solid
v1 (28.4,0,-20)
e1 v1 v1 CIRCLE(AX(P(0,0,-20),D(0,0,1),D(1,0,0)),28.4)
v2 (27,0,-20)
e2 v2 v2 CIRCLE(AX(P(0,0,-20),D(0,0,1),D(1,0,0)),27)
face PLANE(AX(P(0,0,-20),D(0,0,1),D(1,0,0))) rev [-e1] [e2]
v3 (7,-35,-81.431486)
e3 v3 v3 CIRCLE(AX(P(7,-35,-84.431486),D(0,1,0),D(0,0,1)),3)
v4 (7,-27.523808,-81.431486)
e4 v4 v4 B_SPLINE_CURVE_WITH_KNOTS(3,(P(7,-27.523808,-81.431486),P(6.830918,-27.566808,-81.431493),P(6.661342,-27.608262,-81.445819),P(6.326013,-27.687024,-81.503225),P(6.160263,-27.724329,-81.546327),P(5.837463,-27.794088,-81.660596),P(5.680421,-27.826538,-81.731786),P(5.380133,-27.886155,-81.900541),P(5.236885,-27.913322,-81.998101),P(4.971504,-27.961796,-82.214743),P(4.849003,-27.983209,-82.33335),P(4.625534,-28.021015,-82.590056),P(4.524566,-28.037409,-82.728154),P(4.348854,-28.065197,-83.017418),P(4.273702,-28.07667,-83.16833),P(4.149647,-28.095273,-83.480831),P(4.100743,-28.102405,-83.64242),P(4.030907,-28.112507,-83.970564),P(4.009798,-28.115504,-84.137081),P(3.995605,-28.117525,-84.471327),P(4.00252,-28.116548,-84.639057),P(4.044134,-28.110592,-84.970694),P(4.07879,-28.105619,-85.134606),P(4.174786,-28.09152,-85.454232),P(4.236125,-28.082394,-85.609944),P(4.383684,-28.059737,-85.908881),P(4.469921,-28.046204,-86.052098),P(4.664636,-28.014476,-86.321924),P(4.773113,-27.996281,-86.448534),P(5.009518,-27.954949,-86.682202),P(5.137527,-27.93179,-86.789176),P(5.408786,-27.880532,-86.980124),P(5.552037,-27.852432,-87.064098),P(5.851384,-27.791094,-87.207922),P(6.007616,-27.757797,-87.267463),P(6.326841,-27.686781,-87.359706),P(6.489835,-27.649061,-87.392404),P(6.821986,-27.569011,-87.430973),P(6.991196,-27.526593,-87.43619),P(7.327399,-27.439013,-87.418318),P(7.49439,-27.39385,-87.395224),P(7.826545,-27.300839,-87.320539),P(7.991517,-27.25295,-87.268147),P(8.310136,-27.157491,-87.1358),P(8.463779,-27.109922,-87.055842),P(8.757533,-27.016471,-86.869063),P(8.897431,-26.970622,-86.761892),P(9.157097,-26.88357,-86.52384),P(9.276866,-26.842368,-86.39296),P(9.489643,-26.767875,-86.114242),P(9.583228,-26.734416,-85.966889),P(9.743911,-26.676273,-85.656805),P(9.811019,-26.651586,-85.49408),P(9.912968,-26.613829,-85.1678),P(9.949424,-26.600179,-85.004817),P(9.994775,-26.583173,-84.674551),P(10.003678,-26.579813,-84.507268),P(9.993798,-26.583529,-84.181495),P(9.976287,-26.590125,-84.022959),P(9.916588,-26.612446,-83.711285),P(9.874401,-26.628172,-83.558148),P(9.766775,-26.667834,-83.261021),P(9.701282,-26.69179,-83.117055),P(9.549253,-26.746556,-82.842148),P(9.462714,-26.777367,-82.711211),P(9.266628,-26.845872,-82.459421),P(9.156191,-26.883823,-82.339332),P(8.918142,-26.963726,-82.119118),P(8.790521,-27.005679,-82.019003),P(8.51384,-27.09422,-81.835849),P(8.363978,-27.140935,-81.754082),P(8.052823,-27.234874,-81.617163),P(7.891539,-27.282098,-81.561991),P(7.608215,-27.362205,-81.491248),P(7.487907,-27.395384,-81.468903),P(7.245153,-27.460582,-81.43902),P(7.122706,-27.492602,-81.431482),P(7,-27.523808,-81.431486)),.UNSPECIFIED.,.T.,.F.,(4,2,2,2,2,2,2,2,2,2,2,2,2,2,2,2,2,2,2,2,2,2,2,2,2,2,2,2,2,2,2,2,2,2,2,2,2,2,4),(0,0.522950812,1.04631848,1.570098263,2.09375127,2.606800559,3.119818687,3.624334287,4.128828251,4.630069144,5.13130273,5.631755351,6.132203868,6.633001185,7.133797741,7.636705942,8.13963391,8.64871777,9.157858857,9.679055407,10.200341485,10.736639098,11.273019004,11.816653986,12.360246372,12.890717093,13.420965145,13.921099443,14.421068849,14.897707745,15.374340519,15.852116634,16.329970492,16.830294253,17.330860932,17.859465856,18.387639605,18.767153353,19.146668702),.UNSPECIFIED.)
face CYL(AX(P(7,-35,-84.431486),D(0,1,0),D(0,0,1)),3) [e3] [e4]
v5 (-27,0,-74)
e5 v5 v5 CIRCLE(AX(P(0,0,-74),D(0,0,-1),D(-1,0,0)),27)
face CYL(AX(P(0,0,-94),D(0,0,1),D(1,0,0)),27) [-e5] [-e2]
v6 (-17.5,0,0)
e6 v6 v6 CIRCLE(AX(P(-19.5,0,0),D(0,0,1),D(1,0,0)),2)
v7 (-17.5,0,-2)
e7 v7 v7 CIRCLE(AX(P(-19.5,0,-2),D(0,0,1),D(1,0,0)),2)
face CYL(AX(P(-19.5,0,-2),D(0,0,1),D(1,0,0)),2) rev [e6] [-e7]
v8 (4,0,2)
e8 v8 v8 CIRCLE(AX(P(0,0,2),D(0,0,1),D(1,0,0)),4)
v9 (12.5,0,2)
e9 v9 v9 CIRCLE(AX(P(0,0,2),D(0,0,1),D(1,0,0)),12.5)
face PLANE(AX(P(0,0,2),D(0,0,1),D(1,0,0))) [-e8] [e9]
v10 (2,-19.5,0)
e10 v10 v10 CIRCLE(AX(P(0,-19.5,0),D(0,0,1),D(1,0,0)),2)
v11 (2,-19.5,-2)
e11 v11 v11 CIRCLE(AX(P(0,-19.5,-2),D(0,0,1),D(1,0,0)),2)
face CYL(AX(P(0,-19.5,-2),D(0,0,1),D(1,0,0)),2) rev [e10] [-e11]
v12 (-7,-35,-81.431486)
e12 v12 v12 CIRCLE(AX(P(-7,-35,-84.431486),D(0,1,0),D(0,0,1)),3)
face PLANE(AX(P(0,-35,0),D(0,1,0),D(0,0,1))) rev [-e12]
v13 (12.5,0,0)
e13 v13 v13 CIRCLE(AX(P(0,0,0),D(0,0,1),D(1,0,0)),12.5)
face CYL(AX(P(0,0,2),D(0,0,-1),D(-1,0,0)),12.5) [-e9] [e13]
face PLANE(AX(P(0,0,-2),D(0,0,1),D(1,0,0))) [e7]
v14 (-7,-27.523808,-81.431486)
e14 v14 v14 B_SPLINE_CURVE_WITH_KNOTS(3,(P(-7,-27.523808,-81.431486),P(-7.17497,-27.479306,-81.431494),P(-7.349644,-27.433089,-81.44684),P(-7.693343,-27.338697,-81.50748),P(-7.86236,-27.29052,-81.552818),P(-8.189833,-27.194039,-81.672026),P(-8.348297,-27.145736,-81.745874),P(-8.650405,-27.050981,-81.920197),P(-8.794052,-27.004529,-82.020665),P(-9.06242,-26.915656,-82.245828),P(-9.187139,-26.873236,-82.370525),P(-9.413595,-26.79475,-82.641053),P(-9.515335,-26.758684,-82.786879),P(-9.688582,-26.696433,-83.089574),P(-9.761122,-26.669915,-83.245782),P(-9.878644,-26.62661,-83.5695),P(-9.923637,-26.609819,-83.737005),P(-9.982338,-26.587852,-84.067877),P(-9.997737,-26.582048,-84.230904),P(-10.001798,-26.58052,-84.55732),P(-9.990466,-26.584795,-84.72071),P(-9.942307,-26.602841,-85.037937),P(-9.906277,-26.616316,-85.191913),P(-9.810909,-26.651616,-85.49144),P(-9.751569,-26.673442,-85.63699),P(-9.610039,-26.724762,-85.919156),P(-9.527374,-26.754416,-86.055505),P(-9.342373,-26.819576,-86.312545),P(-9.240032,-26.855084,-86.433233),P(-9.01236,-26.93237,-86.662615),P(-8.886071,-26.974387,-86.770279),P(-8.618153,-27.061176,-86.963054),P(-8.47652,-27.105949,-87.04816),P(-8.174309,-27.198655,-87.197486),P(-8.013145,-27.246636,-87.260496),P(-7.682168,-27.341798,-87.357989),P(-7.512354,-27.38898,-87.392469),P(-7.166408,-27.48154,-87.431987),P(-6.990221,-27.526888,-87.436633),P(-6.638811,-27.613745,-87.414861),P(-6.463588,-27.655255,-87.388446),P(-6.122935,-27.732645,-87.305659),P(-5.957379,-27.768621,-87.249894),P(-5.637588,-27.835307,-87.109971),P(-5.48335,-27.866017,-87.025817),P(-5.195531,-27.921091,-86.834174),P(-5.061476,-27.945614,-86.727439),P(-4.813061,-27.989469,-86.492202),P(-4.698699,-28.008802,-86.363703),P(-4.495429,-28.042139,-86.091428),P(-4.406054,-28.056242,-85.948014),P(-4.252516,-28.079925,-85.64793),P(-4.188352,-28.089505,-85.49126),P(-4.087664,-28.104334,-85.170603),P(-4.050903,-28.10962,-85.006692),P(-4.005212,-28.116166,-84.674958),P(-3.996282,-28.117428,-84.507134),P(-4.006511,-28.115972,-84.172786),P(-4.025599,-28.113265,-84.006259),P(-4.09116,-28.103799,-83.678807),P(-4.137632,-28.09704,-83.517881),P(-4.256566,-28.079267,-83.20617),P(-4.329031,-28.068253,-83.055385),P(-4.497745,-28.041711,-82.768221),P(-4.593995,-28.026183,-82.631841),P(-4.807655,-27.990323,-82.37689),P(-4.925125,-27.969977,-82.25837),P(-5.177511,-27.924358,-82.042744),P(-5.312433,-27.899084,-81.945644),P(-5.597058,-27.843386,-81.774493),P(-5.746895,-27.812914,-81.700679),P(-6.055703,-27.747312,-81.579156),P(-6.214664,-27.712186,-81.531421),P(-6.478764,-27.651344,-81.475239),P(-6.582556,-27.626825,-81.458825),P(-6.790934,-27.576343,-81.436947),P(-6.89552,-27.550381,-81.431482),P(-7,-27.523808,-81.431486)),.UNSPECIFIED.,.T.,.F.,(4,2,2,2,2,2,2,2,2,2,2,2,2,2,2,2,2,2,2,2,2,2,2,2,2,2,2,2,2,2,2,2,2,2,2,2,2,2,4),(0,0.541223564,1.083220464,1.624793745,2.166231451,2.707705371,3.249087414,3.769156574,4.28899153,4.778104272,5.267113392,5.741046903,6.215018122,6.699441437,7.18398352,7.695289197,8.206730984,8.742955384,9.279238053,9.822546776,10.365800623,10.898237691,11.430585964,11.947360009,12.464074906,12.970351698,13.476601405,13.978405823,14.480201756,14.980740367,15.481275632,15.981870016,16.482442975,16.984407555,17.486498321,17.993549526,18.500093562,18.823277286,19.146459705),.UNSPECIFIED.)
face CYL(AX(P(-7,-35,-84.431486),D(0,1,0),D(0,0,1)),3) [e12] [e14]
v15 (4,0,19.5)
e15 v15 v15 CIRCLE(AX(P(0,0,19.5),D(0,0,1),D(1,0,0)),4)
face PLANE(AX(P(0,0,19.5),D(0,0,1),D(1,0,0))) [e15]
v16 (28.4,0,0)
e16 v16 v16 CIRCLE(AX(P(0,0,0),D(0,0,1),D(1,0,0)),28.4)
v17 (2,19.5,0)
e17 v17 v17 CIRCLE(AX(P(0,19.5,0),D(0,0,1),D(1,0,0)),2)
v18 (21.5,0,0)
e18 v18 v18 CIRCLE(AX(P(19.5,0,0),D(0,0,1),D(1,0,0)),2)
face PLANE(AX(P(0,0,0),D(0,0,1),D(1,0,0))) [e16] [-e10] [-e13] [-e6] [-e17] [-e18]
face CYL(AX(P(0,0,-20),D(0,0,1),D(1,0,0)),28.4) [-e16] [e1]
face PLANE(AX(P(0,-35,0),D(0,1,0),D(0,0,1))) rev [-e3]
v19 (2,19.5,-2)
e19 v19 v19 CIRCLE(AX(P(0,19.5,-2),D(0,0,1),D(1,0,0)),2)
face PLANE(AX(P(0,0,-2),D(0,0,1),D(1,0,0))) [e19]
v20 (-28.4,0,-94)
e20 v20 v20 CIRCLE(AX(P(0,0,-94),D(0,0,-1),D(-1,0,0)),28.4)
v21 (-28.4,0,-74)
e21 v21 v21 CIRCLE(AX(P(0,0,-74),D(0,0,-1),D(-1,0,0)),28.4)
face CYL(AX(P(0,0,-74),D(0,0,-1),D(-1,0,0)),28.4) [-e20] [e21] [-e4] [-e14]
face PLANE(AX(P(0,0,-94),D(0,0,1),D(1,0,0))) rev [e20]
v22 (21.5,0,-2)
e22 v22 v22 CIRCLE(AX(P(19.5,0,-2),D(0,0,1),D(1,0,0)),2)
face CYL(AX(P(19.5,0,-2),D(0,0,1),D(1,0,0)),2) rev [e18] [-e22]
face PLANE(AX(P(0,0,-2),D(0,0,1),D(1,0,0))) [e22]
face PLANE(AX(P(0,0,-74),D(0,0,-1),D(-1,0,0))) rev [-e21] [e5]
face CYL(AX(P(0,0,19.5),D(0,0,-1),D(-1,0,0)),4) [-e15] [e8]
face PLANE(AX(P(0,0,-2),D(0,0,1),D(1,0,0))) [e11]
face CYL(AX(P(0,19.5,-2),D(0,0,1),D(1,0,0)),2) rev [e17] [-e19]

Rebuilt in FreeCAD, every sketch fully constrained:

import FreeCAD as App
import Part
import Sketcher
from FreeCAD import Vector
Q = App.Units.Quantity

doc = App.newDocument("Part")
body = doc.addObject("PartDesign::Body", "Body")

# Sketch on XY plane
sketch1 = body.newObject("Sketcher::SketchObject", "Sketch")
sketch1.AttachmentSupport = (doc.getObject("XY_Plane"), [""])
sketch1.MapMode = "FlatFace"
sketch1.addGeometry(Part.Circle(Vector(0, 0, 0), Vector(0, 0, 1), 27), False)
sketch1.addConstraint(Sketcher.Constraint("Coincident", 0, 3, -1, 1))
sketch1.addConstraint(Sketcher.Constraint("Diameter", 0, Q("54 mm")))
pad1 = body.newObject("PartDesign::Pad", "Pad")
pad1.Profile = sketch1
pad1.Length = 94
pad1.Reversed = True

# Sketch on XY plane
sketch2 = body.newObject("Sketcher::SketchObject", "Sketch001")
sketch2.AttachmentSupport = (doc.getObject("XY_Plane"), [""])
sketch2.MapMode = "FlatFace"
sketch2.addGeometry(Part.Circle(Vector(0, 0, 0), Vector(0, 0, 1), 28), False)
sketch2.addGeometry(Part.Circle(Vector(0, 0, 0), Vector(0, 0, 1), 27), False)
sketch2.addConstraint(Sketcher.Constraint("Coincident", 0, 3, -1, 1))
sketch2.addConstraint(Sketcher.Constraint("Coincident", 1, 3, -1, 1))
sketch2.addConstraint(Sketcher.Constraint("Diameter", 1, Q("54 mm")))
sketch2.addConstraint(Sketcher.Constraint("Diameter", 0, Q("56.8 mm")))
pad2 = body.newObject("PartDesign::Pad", "Pad001")
pad2.Profile = sketch2
pad2.Length = 20
pad2.Reversed = True

# Sketch on XY plane
sketch3 = body.newObject("Sketcher::SketchObject", "Sketch002")
sketch3.AttachmentSupport = (doc.getObject("XY_Plane"), [""])
sketch3.MapMode = "FlatFace"
sketch3.AttachmentOffset = App.Placement(Vector(0, 0, -74), App.Rotation())
sketch3.addGeometry(Part.Circle(Vector(0, 0, 0), Vector(0, 0, 1), 28), False)
sketch3.addGeometry(Part.Circle(Vector(0, 0, 0), Vector(0, 0, 1), 27), False)
sketch3.addConstraint(Sketcher.Constraint("Coincident", 0, 3, -1, 1))
sketch3.addConstraint(Sketcher.Constraint("Coincident", 1, 3, -1, 1))
sketch3.addConstraint(Sketcher.Constraint("Diameter", 1, Q("54 mm")))
sketch3.addConstraint(Sketcher.Constraint("Diameter", 0, Q("56.8 mm")))
pad3 = body.newObject("PartDesign::Pad", "Pad002")
pad3.Profile = sketch3
pad3.Length = 20
pad3.Reversed = True

# Sketch on XZ plane
sketch4 = body.newObject("Sketcher::SketchObject", "Sketch003")
sketch4.AttachmentSupport = (doc.getObject("XZ_Plane"), [""])
sketch4.MapMode = "FlatFace"
sketch4.AttachmentOffset = App.Placement(Vector(0, 0, 20), App.Rotation())
sketch4.addGeometry(Part.Circle(Vector(-7, -84.4, 0), Vector(0, 0, 1), 3), False)
sketch4.addGeometry(Part.Circle(Vector(7, -84.4, 0), Vector(0, 0, 1), 3), False)
sketch4.addConstraint(Sketcher.Constraint("Equal", 0, 1))
sketch4.addConstraint(Sketcher.Constraint("Symmetric", 0, 3, 1, 3, -2))
sketch4.addConstraint(Sketcher.Constraint("Diameter", 0, Q("6 mm")))
sketch4.addConstraint(Sketcher.Constraint("DistanceX", 0, 3, -1, 1, Q("7 mm")))
sketch4.addConstraint(Sketcher.Constraint("DistanceY", 0, 3, -1, 1, Q("84.431486 mm")))
pad4 = body.newObject("PartDesign::Pad", "Pad003")
pad4.Profile = sketch4
pad4.Length = 15

# Sketch on XY plane
sketch5 = body.newObject("Sketcher::SketchObject", "Sketch004")
sketch5.AttachmentSupport = (doc.getObject("XY_Plane"), [""])
sketch5.MapMode = "FlatFace"
sketch5.addGeometry(Part.Circle(Vector(0, 0, 0), Vector(0, 0, 1), 4), False)
sketch5.addConstraint(Sketcher.Constraint("Coincident", 0, 3, -1, 1))
sketch5.addConstraint(Sketcher.Constraint("Diameter", 0, Q("8 mm")))
pad5 = body.newObject("PartDesign::Pad", "Pad004")
pad5.Profile = sketch5
pad5.Length = 19.5

# Sketch on XY plane
sketch6 = body.newObject("Sketcher::SketchObject", "Sketch005")
sketch6.AttachmentSupport = (doc.getObject("XY_Plane"), [""])
sketch6.MapMode = "FlatFace"
sketch6.addGeometry(Part.Circle(Vector(0, 0, 0), Vector(0, 0, 1), 12.5), False)
sketch6.addGeometry(Part.Circle(Vector(0, 0, 0), Vector(0, 0, 1), 4), False)
sketch6.addConstraint(Sketcher.Constraint("Coincident", 0, 3, -1, 1))
sketch6.addConstraint(Sketcher.Constraint("Coincident", 1, 3, -1, 1))
sketch6.addConstraint(Sketcher.Constraint("Diameter", 0, Q("25 mm")))
sketch6.addConstraint(Sketcher.Constraint("Diameter", 1, Q("8 mm")))
pad6 = body.newObject("PartDesign::Pad", "Pad005")
pad6.Profile = sketch6
pad6.Length = 2

# Sketch on XY plane
sketch7 = body.newObject("Sketcher::SketchObject", "Sketch006")
sketch7.AttachmentSupport = (doc.getObject("XY_Plane"), [""])
sketch7.MapMode = "FlatFace"
sketch7.addGeometry(Part.Circle(Vector(19.5, 0, 0), Vector(0, 0, 1), 2), False)
sketch7.addGeometry(Part.Circle(Vector(0, 19.5, 0), Vector(0, 0, 1), 2), False)
sketch7.addGeometry(Part.Circle(Vector(-19.5, 0, 0), Vector(0, 0, 1), 2), False)
sketch7.addGeometry(Part.Circle(Vector(0, -19.5, 0), Vector(0, 0, 1), 2), False)
sketch7.addConstraint(Sketcher.Constraint("Equal", 0, 1))
sketch7.addConstraint(Sketcher.Constraint("Equal", 1, 2))
sketch7.addConstraint(Sketcher.Constraint("Equal", 2, 3))
sketch7.addConstraint(Sketcher.Constraint("Symmetric", 0, 3, 2, 3, -1, 1))
sketch7.addConstraint(Sketcher.Constraint("Symmetric", 1, 3, 3, 3, -1, 1))
sketch7.addConstraint(Sketcher.Constraint("PointOnObject", 0, 3, -1))
sketch7.addConstraint(Sketcher.Constraint("PointOnObject", 1, 3, -2))
sketch7.addConstraint(Sketcher.Constraint("Diameter", 0, Q("4 mm")))
sketch7.addConstraint(Sketcher.Constraint("DistanceX", 2, 3, 0, 3, Q("39 mm")))
sketch7.addConstraint(Sketcher.Constraint("DistanceY", 3, 3, 1, 3, Q("39 mm")))
pocket1 = body.newObject("PartDesign::Pocket", "Pocket")
pocket1.Profile = sketch7
pocket1.Length = 2

doc.recompute()
